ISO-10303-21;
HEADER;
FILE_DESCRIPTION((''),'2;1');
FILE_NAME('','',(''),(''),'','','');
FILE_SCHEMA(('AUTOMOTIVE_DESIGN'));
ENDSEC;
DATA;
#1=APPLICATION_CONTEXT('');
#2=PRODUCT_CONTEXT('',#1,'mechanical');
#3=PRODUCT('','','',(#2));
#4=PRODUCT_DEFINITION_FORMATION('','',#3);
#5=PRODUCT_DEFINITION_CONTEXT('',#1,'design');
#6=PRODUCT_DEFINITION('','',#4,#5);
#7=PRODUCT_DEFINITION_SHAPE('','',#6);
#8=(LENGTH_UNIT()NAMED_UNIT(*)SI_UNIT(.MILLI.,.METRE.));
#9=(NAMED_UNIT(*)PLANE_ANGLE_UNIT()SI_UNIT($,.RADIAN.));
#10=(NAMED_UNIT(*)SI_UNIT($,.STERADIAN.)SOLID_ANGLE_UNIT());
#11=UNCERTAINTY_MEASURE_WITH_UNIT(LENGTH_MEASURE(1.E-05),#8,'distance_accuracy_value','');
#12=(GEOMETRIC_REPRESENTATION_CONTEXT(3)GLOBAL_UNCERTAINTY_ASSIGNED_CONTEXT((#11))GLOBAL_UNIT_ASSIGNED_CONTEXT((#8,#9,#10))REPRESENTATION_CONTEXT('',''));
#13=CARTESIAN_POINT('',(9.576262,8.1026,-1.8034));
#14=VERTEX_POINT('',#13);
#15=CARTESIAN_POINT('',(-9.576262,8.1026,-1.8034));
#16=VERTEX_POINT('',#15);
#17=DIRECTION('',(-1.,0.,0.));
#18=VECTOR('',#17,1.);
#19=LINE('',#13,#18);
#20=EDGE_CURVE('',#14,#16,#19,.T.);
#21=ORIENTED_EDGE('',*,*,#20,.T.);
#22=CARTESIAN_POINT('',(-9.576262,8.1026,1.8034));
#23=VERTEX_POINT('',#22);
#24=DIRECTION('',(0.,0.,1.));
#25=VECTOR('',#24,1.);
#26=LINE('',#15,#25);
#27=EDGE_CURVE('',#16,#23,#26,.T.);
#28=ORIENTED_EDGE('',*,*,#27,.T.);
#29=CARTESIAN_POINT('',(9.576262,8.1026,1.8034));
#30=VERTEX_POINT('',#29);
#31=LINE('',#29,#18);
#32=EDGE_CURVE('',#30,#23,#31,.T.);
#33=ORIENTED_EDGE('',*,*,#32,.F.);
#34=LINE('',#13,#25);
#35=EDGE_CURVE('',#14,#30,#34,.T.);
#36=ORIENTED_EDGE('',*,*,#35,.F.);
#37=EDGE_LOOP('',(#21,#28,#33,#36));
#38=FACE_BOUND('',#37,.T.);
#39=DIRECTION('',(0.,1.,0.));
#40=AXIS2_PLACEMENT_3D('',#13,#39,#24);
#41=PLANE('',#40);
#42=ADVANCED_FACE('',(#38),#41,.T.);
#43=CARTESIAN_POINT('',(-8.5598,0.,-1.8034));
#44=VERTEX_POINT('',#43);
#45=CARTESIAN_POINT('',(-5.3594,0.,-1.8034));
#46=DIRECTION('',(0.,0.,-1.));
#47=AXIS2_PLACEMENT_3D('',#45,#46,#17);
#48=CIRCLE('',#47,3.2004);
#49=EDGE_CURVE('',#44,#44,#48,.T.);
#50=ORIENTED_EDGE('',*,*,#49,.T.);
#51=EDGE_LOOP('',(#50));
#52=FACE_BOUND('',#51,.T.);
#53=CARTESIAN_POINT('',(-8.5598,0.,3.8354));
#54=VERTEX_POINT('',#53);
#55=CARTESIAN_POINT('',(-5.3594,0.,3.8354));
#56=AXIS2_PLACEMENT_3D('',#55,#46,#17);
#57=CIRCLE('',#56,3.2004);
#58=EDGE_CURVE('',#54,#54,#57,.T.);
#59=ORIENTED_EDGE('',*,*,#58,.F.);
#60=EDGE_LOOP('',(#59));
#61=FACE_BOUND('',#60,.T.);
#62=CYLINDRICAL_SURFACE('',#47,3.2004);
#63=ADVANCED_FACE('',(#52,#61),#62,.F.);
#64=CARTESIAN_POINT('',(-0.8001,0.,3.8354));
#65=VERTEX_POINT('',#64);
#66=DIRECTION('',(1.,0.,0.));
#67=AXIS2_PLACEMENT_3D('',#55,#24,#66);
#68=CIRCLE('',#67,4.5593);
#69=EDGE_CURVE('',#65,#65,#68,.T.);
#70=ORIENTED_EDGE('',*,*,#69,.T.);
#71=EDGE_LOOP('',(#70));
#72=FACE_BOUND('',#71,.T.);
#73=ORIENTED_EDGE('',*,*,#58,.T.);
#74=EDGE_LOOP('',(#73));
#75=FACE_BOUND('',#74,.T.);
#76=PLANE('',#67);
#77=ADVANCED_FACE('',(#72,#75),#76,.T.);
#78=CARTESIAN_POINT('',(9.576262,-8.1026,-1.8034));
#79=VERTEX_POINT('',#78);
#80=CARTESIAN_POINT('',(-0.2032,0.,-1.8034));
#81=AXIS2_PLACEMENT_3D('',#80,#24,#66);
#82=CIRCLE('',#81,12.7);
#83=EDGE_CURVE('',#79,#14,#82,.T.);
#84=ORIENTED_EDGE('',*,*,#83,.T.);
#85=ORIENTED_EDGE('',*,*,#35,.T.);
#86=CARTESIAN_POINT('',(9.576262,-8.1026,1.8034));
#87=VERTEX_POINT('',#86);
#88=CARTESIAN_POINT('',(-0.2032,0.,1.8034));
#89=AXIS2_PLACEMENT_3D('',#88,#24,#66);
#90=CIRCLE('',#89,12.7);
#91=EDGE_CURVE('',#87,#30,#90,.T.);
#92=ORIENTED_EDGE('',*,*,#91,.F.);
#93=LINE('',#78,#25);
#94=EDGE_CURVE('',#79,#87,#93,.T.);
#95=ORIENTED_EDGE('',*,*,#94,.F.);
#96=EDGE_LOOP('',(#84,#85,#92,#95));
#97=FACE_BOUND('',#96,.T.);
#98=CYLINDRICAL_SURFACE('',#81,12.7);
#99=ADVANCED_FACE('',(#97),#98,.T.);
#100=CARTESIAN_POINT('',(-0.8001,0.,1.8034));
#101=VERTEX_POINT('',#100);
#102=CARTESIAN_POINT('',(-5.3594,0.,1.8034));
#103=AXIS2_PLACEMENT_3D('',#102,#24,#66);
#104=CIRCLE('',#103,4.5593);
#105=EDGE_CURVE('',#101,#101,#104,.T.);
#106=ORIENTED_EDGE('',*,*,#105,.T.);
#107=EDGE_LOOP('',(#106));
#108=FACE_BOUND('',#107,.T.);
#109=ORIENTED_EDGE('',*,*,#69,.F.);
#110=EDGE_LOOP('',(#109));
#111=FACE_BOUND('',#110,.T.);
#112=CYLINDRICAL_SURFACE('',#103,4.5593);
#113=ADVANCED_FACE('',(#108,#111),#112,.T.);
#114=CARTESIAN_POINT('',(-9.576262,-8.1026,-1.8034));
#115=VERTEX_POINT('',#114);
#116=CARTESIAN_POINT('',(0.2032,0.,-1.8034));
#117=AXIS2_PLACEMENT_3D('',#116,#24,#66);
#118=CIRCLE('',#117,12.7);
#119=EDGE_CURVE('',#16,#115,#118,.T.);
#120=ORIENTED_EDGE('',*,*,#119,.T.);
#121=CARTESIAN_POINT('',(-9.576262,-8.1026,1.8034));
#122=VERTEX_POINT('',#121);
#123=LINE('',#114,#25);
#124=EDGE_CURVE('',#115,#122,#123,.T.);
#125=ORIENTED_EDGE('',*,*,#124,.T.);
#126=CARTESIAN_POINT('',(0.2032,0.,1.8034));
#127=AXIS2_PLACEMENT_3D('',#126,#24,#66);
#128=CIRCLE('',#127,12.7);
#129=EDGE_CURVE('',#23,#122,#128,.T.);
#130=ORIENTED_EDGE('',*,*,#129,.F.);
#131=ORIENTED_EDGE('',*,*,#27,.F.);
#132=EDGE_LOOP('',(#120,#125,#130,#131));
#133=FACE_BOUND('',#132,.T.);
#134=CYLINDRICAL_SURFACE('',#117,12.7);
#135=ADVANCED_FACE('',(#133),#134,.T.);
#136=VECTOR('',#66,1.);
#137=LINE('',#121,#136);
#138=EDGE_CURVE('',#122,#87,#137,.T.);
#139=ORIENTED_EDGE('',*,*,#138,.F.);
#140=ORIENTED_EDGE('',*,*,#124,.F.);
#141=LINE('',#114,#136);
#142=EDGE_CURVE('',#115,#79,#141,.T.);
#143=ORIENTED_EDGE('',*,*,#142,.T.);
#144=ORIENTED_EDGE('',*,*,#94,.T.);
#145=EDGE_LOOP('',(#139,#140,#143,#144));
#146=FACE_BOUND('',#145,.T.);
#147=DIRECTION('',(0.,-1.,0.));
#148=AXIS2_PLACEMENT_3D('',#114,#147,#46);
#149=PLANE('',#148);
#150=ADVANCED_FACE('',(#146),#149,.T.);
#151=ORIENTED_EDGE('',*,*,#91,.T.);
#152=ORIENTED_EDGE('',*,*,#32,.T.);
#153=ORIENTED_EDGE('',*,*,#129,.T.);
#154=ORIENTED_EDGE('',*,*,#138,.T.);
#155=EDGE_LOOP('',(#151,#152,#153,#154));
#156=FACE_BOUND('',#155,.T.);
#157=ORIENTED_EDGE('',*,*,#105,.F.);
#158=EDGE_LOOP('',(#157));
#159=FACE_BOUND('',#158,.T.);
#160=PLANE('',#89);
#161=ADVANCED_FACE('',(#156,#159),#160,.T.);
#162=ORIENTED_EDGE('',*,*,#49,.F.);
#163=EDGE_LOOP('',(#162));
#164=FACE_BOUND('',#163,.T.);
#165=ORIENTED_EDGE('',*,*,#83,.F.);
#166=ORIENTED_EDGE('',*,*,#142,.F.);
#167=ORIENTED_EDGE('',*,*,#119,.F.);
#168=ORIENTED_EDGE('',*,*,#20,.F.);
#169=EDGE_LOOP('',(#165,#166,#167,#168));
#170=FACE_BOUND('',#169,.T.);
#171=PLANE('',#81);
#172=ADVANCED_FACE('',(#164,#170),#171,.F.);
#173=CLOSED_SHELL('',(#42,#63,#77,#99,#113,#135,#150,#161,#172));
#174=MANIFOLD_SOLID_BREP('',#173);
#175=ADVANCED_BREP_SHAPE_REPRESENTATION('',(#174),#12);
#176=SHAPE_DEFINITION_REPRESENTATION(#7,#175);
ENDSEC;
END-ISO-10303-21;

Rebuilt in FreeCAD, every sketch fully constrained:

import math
import FreeCAD as App
import Part
import Sketcher
from FreeCAD import Vector
Q = App.Units.Quantity


def add_polygon(sketch, points):
    """Adds a closed chain of lines whose ends are joined by coincident constraints."""
    first, n = sketch.GeometryCount, len(points)
    for a, b in zip(points, points[1:] + points[:1]):
        sketch.addGeometry(Part.LineSegment(App.Vector(*a, 0), App.Vector(*b, 0)), False)
    for i in range(n):
        sketch.addConstraint(Sketcher.Constraint("Coincident", first + i, 2, first + (i + 1) % n, 1))

doc = App.newDocument("Part")
body = doc.addObject("PartDesign::Body", "Body")

# Sketch on XY plane
sketch1 = doc.addObject("Sketcher::SketchObject", "Sketch")
body.addObject(sketch1)
sketch1.AttachmentSupport = (doc.XY_Plane, [""])
sketch1.MapMode = "FlatFace"
sketch1.AttachmentOffset = App.Placement(Vector(0, 0, 0.071 * 25.4), App.Rotation())
sketch1.addGeometry(Part.LineSegment(Vector(9.576262, 8.1026, 0), Vector(-9.576262, 8.1026, 0)), False)
sketch1.addGeometry(Part.ArcOfCircle(Part.Circle(Vector(0.2032, 0, 0), Vector(0, 0, 1), 12.7), math.radians(140.357154), math.radians(219.642846)), False)
sketch1.addGeometry(Part.LineSegment(Vector(-9.576262, -8.1026, 0), Vector(9.576262, -8.1026, 0)), False)
sketch1.addGeometry(Part.ArcOfCircle(Part.Circle(Vector(-0.2032, 0, 0), Vector(0, 0, 1), 12.7), math.radians(-39.642846), math.radians(39.642846)), False)
sketch1.addConstraint(Sketcher.Constraint("Coincident", 0, 2, 1, 1))
sketch1.addConstraint(Sketcher.Constraint("Coincident", 1, 2, 2, 1))
sketch1.addConstraint(Sketcher.Constraint("Coincident", 2, 2, 3, 1))
sketch1.addConstraint(Sketcher.Constraint("Coincident", 3, 2, 0, 1))
sketch1.addConstraint(Sketcher.Constraint("Horizontal", 0))
sketch1.addConstraint(Sketcher.Constraint("Horizontal", 2))
sketch1.addConstraint(Sketcher.Constraint("Equal", 1, 3))
sketch1.addConstraint(Sketcher.Constraint("Symmetric", 1, 3, 3, 3, -1, 1))
sketch1.addConstraint(Sketcher.Constraint("Symmetric", 0, 2, 1, 2, -1))
sketch1.addConstraint(Sketcher.Constraint("Radius", 1, Q("0.5 in")))
sketch1.addConstraint(Sketcher.Constraint("DistanceX", -1, 1, 1, 3, Q("0.008 in")))
sketch1.addConstraint(Sketcher.Constraint("DistanceY", -1, 1, 0, 2, Q("0.319 in")))
pad1 = doc.addObject("PartDesign::Pad", "Pad")
body.addObject(pad1)
pad1.Profile = sketch1
pad1.Length = Q("0.142 in")
pad1.Reversed = True

# Sketch on XZ plane
sketch2 = doc.addObject("Sketcher::SketchObject", "Sketch001")
body.addObject(sketch2)
sketch2.AttachmentSupport = (doc.XZ_Plane, [""])
sketch2.MapMode = "FlatFace"
add_polygon(sketch2, [(-5.3594, 1.8034), (-5.3594, 3.8354), (-0.8001, 3.8354), (-0.8001, 1.8034)])  # lines 0-3
sketch2.addGeometry(Part.LineSegment(Vector(-5.3594, 1.8034, 0), Vector(-5.3594, 3.8354, 0)), True)  # axis
sketch2.addConstraint(Sketcher.Constraint("Vertical", 0))
sketch2.addConstraint(Sketcher.Constraint("Horizontal", 1))
sketch2.addConstraint(Sketcher.Constraint("Vertical", 2))
sketch2.addConstraint(Sketcher.Constraint("Horizontal", 3))
sketch2.addConstraint(Sketcher.Constraint("Vertical", 4))
sketch2.addConstraint(Sketcher.Constraint("Coincident", 4, 1, 3, 2))
sketch2.addConstraint(Sketcher.Constraint("Horizontal", 1, 2, 4, 2))
sketch2.addConstraint(Sketcher.Constraint("DistanceY", 0, 1, 0, 2, Q("0.08 in")))
sketch2.addConstraint(Sketcher.Constraint("DistanceX", 1, 1, 1, 2, Q("0.1795 in")))
sketch2.addConstraint(Sketcher.Constraint("DistanceX", 0, 2, -1, 1, Q("0.211 in")))
sketch2.addConstraint(Sketcher.Constraint("DistanceY", -1, 1, 0, 2, Q("0.151 in")))
revolution = doc.addObject("PartDesign::Revolution", "Revolution")
body.addObject(revolution)
revolution.Profile = sketch2
revolution.ReferenceAxis = (sketch2, ["Axis0"])
revolution.Angle = 360

# Sketch on XY plane
sketch3 = doc.addObject("Sketcher::SketchObject", "Sketch002")
body.addObject(sketch3)
sketch3.AttachmentSupport = (doc.XY_Plane, [""])
sketch3.MapMode = "FlatFace"
sketch3.AttachmentOffset = App.Placement(Vector(0, 0, -0.071 * 25.4), App.Rotation())
sketch3.addGeometry(Part.Circle(Vector(-5.3594, 0, 0), Vector(0, 0, 1), 3.2004), False)
sketch3.addConstraint(Sketcher.Constraint("PointOnObject", 0, 3, -1))
sketch3.addConstraint(Sketcher.Constraint("Diameter", 0, Q("0.252 in")))
sketch3.addConstraint(Sketcher.Constraint("DistanceX", 0, 3, -1, 1, Q("0.211 in")))
doc.recompute()
hole = doc.addObject("PartDesign::Hole", "Hole")
body.addObject(hole)
hole.Profile = sketch3
hole.ThreadType = "None"
hole.Diameter = Q("0.252 in")
hole.DepthType = "Dimension"
hole.Depth = Q("0.222 in")
hole.DrillPoint = "Flat"
hole.Reversed = True

doc.recompute()
